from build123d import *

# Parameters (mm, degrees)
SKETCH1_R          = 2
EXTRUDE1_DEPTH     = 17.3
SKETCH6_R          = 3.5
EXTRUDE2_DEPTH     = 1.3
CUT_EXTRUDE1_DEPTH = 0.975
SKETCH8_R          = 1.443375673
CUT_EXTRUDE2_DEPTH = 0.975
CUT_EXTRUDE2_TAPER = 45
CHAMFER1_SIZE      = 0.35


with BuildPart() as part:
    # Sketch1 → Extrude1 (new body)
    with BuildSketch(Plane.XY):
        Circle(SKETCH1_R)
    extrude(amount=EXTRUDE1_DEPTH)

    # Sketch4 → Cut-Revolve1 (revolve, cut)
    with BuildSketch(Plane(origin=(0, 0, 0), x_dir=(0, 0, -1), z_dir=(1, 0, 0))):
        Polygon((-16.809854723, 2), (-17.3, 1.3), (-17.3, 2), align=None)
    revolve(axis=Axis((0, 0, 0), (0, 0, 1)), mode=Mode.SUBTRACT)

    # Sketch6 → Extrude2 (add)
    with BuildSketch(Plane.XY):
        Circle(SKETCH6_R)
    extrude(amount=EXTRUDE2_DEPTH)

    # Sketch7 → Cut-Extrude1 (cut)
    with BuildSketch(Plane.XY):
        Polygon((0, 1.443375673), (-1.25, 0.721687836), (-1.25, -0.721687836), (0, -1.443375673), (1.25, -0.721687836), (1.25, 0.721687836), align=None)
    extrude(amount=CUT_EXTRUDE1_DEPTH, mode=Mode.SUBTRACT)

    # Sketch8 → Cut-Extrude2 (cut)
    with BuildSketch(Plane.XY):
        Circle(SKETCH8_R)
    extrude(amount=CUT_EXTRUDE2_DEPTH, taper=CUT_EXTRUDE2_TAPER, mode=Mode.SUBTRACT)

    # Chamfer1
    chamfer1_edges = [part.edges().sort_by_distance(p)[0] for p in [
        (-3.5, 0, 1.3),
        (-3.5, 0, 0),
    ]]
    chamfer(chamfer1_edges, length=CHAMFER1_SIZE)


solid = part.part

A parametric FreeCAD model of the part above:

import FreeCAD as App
import Part
import Sketcher
Q = App.Units.Quantity


def edges_at(feature, points):
    """Names of the edges that pass closest to the given points."""
    edges = feature.Shape.Edges
    near = lambda p: min(range(len(edges)), key=lambda i: edges[i].distToShape(Part.Vertex(*p))[0])
    return sorted({f"Edge{near(p) + 1}" for p in points})


def add_polygon(sketch, points):
    """Adds a closed chain of lines whose ends are joined by coincident constraints."""
    first, n = sketch.GeometryCount, len(points)
    for a, b in zip(points, points[1:] + points[:1]):
        sketch.addGeometry(Part.LineSegment(App.Vector(*a, 0), App.Vector(*b, 0)), False)
    for i in range(n):
        sketch.addConstraint(Sketcher.Constraint("Coincident", first + i, 2, first + (i + 1) % n, 1))

doc = App.newDocument("Part")
body = doc.addObject("PartDesign::Body", "Body")

# Sketch on XY plane
sketch1 = doc.addObject("Sketcher::SketchObject", "Sketch")
body.addObject(sketch1)
sketch1.AttachmentSupport = (doc.XY_Plane, [""])
sketch1.MapMode = "FlatFace"
sketch1.addGeometry(Part.Circle(App.Vector(0, 0, 0), App.Vector(0, 0, 1), 2), False)
sketch1.addConstraint([
    Sketcher.Constraint("Coincident", 0, 3, -1, 1),
    Sketcher.Constraint("Diameter", 0, 4.0),
])
pad1 = doc.addObject("PartDesign::Pad", "Pad")
body.addObject(pad1)
pad1.Profile = sketch1
pad1.Length = 17.3

# Sketch on YZ plane
sketch2 = doc.addObject("Sketcher::SketchObject", "Sketch001")
body.addObject(sketch2)
sketch2.AttachmentSupport = (doc.YZ_Plane, [""])
sketch2.MapMode = "FlatFace"
add_polygon(sketch2, [(1.3, 17.3), (2, 16.81), (2, 17.3)])  # lines 0-2
sketch2.addConstraint([
    Sketcher.Constraint("Vertical", 1),
    Sketcher.Constraint("Horizontal", 2),
    Sketcher.Constraint("Angle", 0, Q("-35 deg")),
    Sketcher.Constraint("DistanceX", 2, 2, 2, 1, 0.7),
    Sketcher.Constraint("DistanceX", -1, 1, 0, 2, 2.0),
    Sketcher.Constraint("DistanceY", -1, 1, 1, 2, 17.3),
])
groove = doc.addObject("PartDesign::Groove", "Groove")
body.addObject(groove)
groove.Profile = sketch2
groove.ReferenceAxis = (sketch2, ["V_Axis"])
groove.Angle = 360

# Sketch on XY plane
sketch3 = doc.addObject("Sketcher::SketchObject", "Sketch002")
body.addObject(sketch3)
sketch3.AttachmentSupport = (doc.XY_Plane, [""])
sketch3.MapMode = "FlatFace"
sketch3.addGeometry(Part.Circle(App.Vector(0, 0, 0), App.Vector(0, 0, 1), 3.5), False)
sketch3.addConstraint([
    Sketcher.Constraint("Coincident", 0, 3, -1, 1),
    Sketcher.Constraint("Diameter", 0, 7.0),
])
pad2 = doc.addObject("PartDesign::Pad", "Pad001")
body.addObject(pad2)
pad2.Profile = sketch3
pad2.Length = 1.3

# Sketch on XY plane
sketch4 = doc.addObject("Sketcher::SketchObject", "Sketch003")
body.addObject(sketch4)
sketch4.AttachmentSupport = (doc.XY_Plane, [""])
sketch4.MapMode = "FlatFace"
add_polygon(sketch4, [(0, 1.4), (-1.2, 0.7), (-1.2, -0.7), (0, -1.4), (1.2, -0.7), (1.2, 0.7)])  # lines 0-5
sketch4.addConstraint([
    Sketcher.Constraint("Vertical", 1),
    Sketcher.Constraint("Vertical", 4),
    Sketcher.Constraint("Symmetric", 0, 2, 3, 2, -1, 1),
    Sketcher.Constraint("Symmetric", 2, 2, 5, 2, -1, 1),
    Sketcher.Constraint("PointOnObject", 2, 2, -2),
    Sketcher.Constraint("Parallel", 2, 5),
    Sketcher.Constraint("Horizontal", 1, 2, 3, 2),
    Sketcher.Constraint("Angle", 0, Q("-150 deg")),
    Sketcher.Constraint("DistanceX", 1, 2, 3, 2, 2.5),
    Sketcher.Constraint("DistanceY", 1, 2, 1, 1, 1.443376),
])
pocket1 = doc.addObject("PartDesign::Pocket", "Pocket")
body.addObject(pocket1)
pocket1.Profile = sketch4
pocket1.Length = 0.975
pocket1.Reversed = True

# Sketch on XY plane
sketch5 = doc.addObject("Sketcher::SketchObject", "Sketch004")
body.addObject(sketch5)
sketch5.AttachmentSupport = (doc.XY_Plane, [""])
sketch5.MapMode = "FlatFace"
sketch5.addGeometry(Part.Circle(App.Vector(0, 0, 0), App.Vector(0, 0, 1), 1.4), False)
sketch5.addConstraint([
    Sketcher.Constraint("Coincident", 0, 3, -1, 1),
    Sketcher.Constraint("Diameter", 0, 2.886751),
])
pocket2 = doc.addObject("PartDesign::Pocket", "Pocket001")
body.addObject(pocket2)
pocket2.Profile = sketch5
pocket2.Length = 0.975
pocket2.Reversed = True
pocket2.TaperAngle = -45
doc.recompute()

chamfer = doc.addObject("PartDesign::Chamfer", "Chamfer")
body.addObject(chamfer)
chamfer.Base = (pocket2, edges_at(pocket2, [(-3.5, 0, 1.3), (-3.5, 0, 0)]))
chamfer.Size = 0.35

doc.recompute()
